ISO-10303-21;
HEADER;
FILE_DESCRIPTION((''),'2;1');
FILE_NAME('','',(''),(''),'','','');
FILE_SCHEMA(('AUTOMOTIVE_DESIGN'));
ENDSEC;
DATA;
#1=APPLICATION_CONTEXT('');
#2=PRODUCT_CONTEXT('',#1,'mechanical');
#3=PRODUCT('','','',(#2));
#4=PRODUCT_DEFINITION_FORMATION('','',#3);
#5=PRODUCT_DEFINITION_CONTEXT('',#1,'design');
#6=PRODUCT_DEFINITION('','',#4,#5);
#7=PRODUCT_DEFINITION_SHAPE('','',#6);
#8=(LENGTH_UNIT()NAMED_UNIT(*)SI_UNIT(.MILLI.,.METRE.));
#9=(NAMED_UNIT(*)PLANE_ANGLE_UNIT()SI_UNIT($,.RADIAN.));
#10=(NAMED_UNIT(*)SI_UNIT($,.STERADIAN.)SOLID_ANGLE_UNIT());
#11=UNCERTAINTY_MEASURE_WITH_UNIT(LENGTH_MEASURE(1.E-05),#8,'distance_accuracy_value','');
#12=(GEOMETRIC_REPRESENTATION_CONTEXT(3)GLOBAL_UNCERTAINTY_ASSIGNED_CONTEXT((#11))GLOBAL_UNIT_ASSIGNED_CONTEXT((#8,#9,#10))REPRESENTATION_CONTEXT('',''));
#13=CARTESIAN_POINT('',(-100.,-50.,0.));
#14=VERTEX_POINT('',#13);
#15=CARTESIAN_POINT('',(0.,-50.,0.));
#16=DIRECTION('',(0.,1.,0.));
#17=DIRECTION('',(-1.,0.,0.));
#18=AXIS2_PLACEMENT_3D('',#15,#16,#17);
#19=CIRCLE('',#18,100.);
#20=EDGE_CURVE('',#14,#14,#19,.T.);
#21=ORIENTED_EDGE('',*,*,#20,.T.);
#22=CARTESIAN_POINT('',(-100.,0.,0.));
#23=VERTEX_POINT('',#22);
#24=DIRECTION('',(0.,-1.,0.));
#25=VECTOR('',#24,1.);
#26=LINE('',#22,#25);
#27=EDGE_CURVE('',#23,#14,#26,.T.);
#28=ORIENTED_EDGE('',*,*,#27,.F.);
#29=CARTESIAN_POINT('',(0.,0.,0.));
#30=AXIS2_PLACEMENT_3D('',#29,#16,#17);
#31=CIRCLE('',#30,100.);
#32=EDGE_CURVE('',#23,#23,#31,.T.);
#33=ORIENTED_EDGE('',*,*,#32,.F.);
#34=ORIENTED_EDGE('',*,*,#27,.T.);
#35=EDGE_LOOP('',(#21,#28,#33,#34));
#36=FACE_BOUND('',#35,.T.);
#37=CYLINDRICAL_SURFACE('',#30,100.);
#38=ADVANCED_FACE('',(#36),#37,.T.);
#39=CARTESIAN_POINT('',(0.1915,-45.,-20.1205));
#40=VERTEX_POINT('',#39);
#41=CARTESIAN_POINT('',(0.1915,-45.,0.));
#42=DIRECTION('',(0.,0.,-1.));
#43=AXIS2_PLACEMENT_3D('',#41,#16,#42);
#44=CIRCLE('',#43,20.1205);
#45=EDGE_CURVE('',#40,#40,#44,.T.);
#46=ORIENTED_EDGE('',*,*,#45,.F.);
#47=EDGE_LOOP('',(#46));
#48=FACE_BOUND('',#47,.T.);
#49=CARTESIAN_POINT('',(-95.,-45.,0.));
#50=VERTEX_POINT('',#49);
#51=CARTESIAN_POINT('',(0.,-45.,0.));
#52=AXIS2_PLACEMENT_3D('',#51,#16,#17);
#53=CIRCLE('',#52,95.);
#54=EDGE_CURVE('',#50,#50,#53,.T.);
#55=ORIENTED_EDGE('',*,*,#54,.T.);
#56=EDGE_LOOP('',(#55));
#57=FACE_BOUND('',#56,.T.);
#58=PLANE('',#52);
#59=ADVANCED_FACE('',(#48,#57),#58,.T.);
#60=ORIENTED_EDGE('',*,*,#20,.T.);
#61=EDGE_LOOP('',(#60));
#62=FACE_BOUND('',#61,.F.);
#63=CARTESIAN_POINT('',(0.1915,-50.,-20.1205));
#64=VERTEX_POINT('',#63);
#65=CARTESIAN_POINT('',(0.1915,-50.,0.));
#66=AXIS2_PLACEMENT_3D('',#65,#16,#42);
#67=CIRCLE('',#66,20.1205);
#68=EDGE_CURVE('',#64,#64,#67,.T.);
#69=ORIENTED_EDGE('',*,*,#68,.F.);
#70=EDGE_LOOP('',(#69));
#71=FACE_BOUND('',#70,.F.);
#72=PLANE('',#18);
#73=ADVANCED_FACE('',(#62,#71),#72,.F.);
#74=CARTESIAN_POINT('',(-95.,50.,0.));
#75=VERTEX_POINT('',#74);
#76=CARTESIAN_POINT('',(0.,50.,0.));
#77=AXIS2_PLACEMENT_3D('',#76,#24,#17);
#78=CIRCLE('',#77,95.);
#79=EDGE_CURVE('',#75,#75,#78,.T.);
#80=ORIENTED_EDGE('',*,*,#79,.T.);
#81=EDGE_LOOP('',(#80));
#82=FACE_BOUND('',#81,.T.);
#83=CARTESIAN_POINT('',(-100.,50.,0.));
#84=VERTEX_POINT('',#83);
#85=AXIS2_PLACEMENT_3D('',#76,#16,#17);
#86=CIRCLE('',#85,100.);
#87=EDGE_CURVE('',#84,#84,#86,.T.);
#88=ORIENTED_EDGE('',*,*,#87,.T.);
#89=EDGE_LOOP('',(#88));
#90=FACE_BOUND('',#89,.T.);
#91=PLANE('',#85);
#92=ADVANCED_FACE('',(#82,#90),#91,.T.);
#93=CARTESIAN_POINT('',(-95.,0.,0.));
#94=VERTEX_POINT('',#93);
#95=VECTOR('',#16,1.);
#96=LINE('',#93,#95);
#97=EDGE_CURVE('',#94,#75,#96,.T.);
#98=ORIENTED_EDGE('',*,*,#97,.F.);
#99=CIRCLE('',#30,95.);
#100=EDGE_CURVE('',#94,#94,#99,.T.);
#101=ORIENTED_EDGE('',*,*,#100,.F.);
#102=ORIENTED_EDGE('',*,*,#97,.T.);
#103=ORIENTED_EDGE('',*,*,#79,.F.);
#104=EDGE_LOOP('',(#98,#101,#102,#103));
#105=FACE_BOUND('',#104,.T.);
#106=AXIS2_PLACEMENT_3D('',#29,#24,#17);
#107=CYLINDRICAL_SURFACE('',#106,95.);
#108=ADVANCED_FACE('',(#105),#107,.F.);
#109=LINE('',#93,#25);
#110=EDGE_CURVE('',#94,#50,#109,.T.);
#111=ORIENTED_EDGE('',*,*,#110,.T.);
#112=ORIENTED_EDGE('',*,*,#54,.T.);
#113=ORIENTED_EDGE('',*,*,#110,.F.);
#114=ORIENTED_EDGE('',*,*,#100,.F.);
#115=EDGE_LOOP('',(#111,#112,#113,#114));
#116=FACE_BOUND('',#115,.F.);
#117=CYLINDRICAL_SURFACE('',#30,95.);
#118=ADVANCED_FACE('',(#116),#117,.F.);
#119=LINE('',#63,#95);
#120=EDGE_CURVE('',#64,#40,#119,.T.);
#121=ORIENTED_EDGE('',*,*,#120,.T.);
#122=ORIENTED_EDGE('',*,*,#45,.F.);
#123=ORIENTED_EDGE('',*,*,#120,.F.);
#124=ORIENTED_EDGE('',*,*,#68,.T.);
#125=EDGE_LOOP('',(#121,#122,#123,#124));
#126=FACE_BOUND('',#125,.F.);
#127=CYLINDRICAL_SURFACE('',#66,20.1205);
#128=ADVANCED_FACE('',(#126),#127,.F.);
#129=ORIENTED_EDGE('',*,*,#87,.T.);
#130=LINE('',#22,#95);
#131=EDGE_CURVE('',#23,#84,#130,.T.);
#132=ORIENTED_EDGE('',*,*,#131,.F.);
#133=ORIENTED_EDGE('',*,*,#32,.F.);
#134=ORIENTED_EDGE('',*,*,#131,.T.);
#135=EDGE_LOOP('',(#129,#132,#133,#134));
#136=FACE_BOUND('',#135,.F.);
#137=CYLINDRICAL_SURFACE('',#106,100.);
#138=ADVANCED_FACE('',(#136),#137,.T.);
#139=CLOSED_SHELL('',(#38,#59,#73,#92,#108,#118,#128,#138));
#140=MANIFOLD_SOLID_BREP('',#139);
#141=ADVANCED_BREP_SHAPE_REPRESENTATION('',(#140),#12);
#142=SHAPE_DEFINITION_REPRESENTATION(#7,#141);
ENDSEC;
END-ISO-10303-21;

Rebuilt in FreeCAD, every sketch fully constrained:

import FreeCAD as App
import Part
import Sketcher
from FreeCAD import Vector
Q = App.Units.Quantity


def faces_at(feature, points):
    """Names of the faces that lie closest to the given points."""
    faces = feature.Shape.Faces
    near = lambda p: min(range(len(faces)), key=lambda i: faces[i].distToShape(Part.Vertex(*p))[0])
    return sorted({f"Face{near(p) + 1}" for p in points})

doc = App.newDocument("Part")
body = doc.addObject("PartDesign::Body", "Body")

# Sketch on XZ plane
sketch1 = body.newObject("Sketcher::SketchObject", "Sketch")
sketch1.AttachmentSupport = (doc.getObject("XZ_Plane"), [""])
sketch1.MapMode = "FlatFace"
sketch1.addGeometry(Part.Circle(Vector(0, 0, 0), Vector(0, 0, 1), 100), False)
sketch1.addConstraint([
    Sketcher.Constraint("Coincident", 0, 3, -1, 1),
    Sketcher.Constraint("Diameter", 0, Q("200 mm")),
])
pad1 = body.newObject("PartDesign::Pad", "Pad")
pad1.Profile = sketch1
pad1.Length = 100
pad1.Midplane = True
doc.recompute()

thickness = body.newObject("PartDesign::Thickness", "Thickness")
thickness.Base = (pad1, faces_at(pad1, [(-44.357, 50, 16.539)]))
thickness.Value = 5
thickness.Reversed = True
thickness.Join = "Intersection"

# Sketch on XZ plane
sketch2 = body.newObject("Sketcher::SketchObject", "Sketch001")
sketch2.AttachmentSupport = (doc.getObject("XZ_Plane"), [""])
sketch2.MapMode = "FlatFace"
sketch2.AttachmentOffset = App.Placement(Vector(0, 0, 50), App.Rotation())
sketch2.addGeometry(Part.Circle(Vector(0, 0, 0), Vector(0, 0, 1), 20), False)
sketch2.addConstraint([
    Sketcher.Constraint("PointOnObject", 0, 3, -1),
    Sketcher.Constraint("Diameter", 0, Q("40.241 mm")),
    Sketcher.Constraint("DistanceX", -1, 1, 0, 3, Q("0.1915 mm")),
])
doc.recompute()
hole = body.newObject("PartDesign::Hole", "Hole")
hole.Profile = sketch2
hole.ThreadType = "None"
hole.Diameter = 40.241
hole.DepthType = "ThroughAll"

doc.recompute()
